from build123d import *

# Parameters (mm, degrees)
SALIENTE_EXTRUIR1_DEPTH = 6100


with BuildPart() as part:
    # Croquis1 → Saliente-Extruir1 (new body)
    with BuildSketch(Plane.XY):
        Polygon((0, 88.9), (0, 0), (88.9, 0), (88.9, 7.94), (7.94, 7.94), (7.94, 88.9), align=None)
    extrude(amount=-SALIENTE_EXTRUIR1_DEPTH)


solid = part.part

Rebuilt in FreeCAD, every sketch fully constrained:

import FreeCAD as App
import Part
import Sketcher
from FreeCAD import Vector


def add_polygon(sketch, points):
    """Adds a closed chain of lines whose ends are joined by coincident constraints."""
    first, n = sketch.GeometryCount, len(points)
    for a, b in zip(points, points[1:] + points[:1]):
        sketch.addGeometry(Part.LineSegment(App.Vector(*a, 0), App.Vector(*b, 0)), False)
    for i in range(n):
        sketch.addConstraint(Sketcher.Constraint("Coincident", first + i, 2, first + (i + 1) % n, 1))

doc = App.newDocument("Part")
body = doc.addObject("PartDesign::Body", "Body")

sketch1 = doc.addObject("Sketcher::SketchObject", "Sketch")
body.addObject(sketch1)
sketch1.AttachmentSupport = (doc.XY_Plane, [""])
sketch1.MapMode = "FlatFace"
add_polygon(sketch1, [(0, 89), (0, 0), (89, 0), (89, 8), (8, 8), (8, 89)])
sketch1.addConstraint([
    Sketcher.Constraint("Vertical", 0),
    Sketcher.Constraint("Horizontal", 1),
    Sketcher.Constraint("Vertical", 2),
    Sketcher.Constraint("Horizontal", 3),
    Sketcher.Constraint("Vertical", 4),
    Sketcher.Constraint("Horizontal", 5),
    Sketcher.Constraint("Coincident", 0, 2, -1, 1),
    Sketcher.Constraint("Equal", 1, 0),
    Sketcher.Constraint("Equal", 5, 2),
    Sketcher.Constraint("DistanceX", 1, 1, 1, 2, 88.9),
    Sketcher.Constraint("DistanceX", 3, 2, 3, 1, 80.96),
])
pad1 = doc.addObject("PartDesign::Pad", "Pad")
body.addObject(pad1)
pad1.Profile = sketch1
pad1.Length = 6100
pad1.Reversed = True

doc.recompute()
